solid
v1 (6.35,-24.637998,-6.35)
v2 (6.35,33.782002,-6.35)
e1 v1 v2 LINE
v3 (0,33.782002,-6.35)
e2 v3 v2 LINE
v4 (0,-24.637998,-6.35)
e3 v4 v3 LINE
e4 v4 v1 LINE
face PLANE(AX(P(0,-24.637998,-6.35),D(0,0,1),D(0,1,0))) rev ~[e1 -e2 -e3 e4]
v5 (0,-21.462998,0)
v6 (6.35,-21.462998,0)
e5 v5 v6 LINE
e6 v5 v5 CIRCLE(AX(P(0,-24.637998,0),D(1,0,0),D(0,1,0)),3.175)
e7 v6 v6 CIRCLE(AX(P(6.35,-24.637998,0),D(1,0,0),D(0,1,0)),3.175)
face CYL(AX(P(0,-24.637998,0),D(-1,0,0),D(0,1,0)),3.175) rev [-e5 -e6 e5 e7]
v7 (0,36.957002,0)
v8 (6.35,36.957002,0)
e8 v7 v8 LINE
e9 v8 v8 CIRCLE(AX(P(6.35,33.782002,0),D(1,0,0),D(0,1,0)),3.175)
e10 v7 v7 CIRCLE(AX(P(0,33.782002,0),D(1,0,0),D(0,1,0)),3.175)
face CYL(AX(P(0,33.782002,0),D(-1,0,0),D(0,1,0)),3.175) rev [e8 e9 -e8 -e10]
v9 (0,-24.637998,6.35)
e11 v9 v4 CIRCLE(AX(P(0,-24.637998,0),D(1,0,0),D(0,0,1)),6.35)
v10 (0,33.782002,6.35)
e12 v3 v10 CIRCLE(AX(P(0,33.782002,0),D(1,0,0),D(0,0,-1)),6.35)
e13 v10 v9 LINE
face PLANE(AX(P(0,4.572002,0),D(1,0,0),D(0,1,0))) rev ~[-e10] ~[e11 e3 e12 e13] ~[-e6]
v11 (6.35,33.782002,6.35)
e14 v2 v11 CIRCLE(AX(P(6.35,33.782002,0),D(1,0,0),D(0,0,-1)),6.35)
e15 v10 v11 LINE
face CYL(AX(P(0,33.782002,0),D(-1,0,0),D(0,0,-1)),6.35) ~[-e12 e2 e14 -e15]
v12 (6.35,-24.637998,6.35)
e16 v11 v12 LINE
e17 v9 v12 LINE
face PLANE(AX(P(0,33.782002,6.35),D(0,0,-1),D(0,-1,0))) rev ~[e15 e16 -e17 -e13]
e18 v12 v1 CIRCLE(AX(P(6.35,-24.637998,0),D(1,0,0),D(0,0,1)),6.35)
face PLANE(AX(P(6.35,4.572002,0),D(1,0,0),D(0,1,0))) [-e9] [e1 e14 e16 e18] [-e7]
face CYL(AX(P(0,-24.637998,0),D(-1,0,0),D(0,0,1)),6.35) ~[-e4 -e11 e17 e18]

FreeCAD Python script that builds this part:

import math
import FreeCAD as App
import Part
import Sketcher

V = App.Vector
Q = App.Units.Quantity

doc = App.newDocument("Part")
params = doc.addObject("Spreadsheet::Sheet", "Params")
for row, (alias, value) in enumerate([
    ("sketch1_diameter", "0.25 in"),
    ("sketch1_radius", "0.25 in"),
    ("sketch1_width", "2.3 in"),
    ("pad1_length", "0.25 in"),
], start=1):
    params.set(f"A{row}", alias)
    params.set(f"B{row}", "=" + value)
    params.setAlias(f"B{row}", alias)

body = doc.addObject("PartDesign::Body", "Body")

sketch1 = body.newObject("Sketcher::SketchObject", "Sketch")
sketch1.AttachmentSupport = (doc.getObject("YZ_Plane"), [""])
sketch1.MapMode = "FlatFace"
sketch1.addGeometry([
    Part.LineSegment(V(33.8, 6.3, 0), V(-24.6, 6.3, 0)),
    Part.ArcOfCircle(Part.Circle(V(-24.6, 0, 0), V(0, 0, 1), 6.3), math.radians(90), math.radians(270)),
    Part.LineSegment(V(-24.6, -6.3, 0), V(33.8, -6.3, 0)),
    Part.ArcOfCircle(Part.Circle(V(33.8, 0, 0), V(0, 0, 1), 6.3), math.radians(-90), math.radians(90)),
    Part.Circle(V(-24.6, 0, 0), V(0, 0, 1), 3.2),
    Part.Circle(V(33.8, 0, 0), V(0, 0, 1), 3.2),
], False)
sketch1.addConstraint([
    Sketcher.Constraint("Tangent", 0, 2, 1, 1),
    Sketcher.Constraint("Tangent", 1, 2, 2, 1),
    Sketcher.Constraint("Tangent", 2, 2, 3, 1),
    Sketcher.Constraint("Tangent", 3, 2, 0, 1),
    Sketcher.Constraint("Horizontal", 0),
    Sketcher.Constraint("Horizontal", 2),
    Sketcher.Constraint("Coincident", 4, 3, 1, 3),
    Sketcher.Constraint("Coincident", 5, 3, 3, 3),
    Sketcher.Constraint("Equal", 4, 5),
    Sketcher.Constraint("PointOnObject", 1, 3, -1),
    Sketcher.Constraint("Diameter", 4, Q("0.25 in")),
    Sketcher.Constraint("Radius", 1, Q("0.25 in")),
    Sketcher.Constraint("DistanceX", 0, 2, 0, 1, Q("2.3 in")),
    Sketcher.Constraint("DistanceX", 1, 3, -1, 1, Q("0.9699999 in")),
])
sketch1.setExpression("Constraints[10]", "Params.sketch1_diameter")
sketch1.setExpression("Constraints[11]", "Params.sketch1_radius")
sketch1.setExpression("Constraints[12]", "Params.sketch1_width")
pad1 = body.newObject("PartDesign::Pad", "Pad")
pad1.Profile = sketch1
pad1.setExpression("Length", "Params.pad1_length")

doc.recompute()
